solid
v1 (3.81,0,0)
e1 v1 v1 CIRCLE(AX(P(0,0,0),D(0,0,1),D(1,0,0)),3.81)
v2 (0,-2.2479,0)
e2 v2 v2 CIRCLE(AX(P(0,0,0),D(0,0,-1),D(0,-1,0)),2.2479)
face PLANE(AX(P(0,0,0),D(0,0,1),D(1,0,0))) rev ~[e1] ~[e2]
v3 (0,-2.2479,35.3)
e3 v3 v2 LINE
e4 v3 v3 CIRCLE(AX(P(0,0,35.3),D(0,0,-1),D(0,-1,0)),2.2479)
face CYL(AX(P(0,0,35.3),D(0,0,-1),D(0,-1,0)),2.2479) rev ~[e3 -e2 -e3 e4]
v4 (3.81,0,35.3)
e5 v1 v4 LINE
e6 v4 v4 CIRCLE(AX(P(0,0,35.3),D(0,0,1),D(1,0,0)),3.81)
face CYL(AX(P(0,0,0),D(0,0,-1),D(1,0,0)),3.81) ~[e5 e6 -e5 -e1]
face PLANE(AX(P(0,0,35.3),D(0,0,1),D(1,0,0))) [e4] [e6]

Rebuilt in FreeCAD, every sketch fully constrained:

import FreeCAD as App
import Part
import Sketcher
from FreeCAD import Vector
Q = App.Units.Quantity

doc = App.newDocument("Part")
body = doc.addObject("PartDesign::Body", "Body")

# Sketch on XY plane
sketch1 = doc.addObject("Sketcher::SketchObject", "Sketch")
body.addObject(sketch1)
sketch1.AttachmentSupport = (doc.XY_Plane, [""])
sketch1.MapMode = "FlatFace"
sketch1.addGeometry(Part.Circle(Vector(0, 0, 0), Vector(0, 0, 1), 3.8), False)
sketch1.addConstraint(Sketcher.Constraint("Coincident", 0, 3, -1, 1))
sketch1.addConstraint(Sketcher.Constraint("Diameter", 0, Q("0.3 in")))
pad1 = doc.addObject("PartDesign::Pad", "Pad")
body.addObject(pad1)
pad1.Profile = sketch1
pad1.Length = 35.3

# Sketch on XY plane
sketch2 = doc.addObject("Sketcher::SketchObject", "Sketch001")
body.addObject(sketch2)
sketch2.AttachmentSupport = (doc.XY_Plane, [""])
sketch2.MapMode = "FlatFace"
sketch2.AttachmentOffset = App.Placement(Vector(0, 0, 35.3), App.Rotation())
sketch2.addGeometry(Part.Circle(Vector(0, 0, 0), Vector(0, 0, 1), 2.2), False)
sketch2.addConstraint(Sketcher.Constraint("Coincident", 0, 3, -1, 1))
sketch2.addConstraint(Sketcher.Constraint("Diameter", 0, Q("0.177 in")))
doc.recompute()
hole = doc.addObject("PartDesign::Hole", "Hole")
body.addObject(hole)
hole.Profile = sketch2
hole.ThreadType = "None"
hole.Diameter = Q("0.177 in")
hole.DepthType = "ThroughAll"

doc.recompute()
